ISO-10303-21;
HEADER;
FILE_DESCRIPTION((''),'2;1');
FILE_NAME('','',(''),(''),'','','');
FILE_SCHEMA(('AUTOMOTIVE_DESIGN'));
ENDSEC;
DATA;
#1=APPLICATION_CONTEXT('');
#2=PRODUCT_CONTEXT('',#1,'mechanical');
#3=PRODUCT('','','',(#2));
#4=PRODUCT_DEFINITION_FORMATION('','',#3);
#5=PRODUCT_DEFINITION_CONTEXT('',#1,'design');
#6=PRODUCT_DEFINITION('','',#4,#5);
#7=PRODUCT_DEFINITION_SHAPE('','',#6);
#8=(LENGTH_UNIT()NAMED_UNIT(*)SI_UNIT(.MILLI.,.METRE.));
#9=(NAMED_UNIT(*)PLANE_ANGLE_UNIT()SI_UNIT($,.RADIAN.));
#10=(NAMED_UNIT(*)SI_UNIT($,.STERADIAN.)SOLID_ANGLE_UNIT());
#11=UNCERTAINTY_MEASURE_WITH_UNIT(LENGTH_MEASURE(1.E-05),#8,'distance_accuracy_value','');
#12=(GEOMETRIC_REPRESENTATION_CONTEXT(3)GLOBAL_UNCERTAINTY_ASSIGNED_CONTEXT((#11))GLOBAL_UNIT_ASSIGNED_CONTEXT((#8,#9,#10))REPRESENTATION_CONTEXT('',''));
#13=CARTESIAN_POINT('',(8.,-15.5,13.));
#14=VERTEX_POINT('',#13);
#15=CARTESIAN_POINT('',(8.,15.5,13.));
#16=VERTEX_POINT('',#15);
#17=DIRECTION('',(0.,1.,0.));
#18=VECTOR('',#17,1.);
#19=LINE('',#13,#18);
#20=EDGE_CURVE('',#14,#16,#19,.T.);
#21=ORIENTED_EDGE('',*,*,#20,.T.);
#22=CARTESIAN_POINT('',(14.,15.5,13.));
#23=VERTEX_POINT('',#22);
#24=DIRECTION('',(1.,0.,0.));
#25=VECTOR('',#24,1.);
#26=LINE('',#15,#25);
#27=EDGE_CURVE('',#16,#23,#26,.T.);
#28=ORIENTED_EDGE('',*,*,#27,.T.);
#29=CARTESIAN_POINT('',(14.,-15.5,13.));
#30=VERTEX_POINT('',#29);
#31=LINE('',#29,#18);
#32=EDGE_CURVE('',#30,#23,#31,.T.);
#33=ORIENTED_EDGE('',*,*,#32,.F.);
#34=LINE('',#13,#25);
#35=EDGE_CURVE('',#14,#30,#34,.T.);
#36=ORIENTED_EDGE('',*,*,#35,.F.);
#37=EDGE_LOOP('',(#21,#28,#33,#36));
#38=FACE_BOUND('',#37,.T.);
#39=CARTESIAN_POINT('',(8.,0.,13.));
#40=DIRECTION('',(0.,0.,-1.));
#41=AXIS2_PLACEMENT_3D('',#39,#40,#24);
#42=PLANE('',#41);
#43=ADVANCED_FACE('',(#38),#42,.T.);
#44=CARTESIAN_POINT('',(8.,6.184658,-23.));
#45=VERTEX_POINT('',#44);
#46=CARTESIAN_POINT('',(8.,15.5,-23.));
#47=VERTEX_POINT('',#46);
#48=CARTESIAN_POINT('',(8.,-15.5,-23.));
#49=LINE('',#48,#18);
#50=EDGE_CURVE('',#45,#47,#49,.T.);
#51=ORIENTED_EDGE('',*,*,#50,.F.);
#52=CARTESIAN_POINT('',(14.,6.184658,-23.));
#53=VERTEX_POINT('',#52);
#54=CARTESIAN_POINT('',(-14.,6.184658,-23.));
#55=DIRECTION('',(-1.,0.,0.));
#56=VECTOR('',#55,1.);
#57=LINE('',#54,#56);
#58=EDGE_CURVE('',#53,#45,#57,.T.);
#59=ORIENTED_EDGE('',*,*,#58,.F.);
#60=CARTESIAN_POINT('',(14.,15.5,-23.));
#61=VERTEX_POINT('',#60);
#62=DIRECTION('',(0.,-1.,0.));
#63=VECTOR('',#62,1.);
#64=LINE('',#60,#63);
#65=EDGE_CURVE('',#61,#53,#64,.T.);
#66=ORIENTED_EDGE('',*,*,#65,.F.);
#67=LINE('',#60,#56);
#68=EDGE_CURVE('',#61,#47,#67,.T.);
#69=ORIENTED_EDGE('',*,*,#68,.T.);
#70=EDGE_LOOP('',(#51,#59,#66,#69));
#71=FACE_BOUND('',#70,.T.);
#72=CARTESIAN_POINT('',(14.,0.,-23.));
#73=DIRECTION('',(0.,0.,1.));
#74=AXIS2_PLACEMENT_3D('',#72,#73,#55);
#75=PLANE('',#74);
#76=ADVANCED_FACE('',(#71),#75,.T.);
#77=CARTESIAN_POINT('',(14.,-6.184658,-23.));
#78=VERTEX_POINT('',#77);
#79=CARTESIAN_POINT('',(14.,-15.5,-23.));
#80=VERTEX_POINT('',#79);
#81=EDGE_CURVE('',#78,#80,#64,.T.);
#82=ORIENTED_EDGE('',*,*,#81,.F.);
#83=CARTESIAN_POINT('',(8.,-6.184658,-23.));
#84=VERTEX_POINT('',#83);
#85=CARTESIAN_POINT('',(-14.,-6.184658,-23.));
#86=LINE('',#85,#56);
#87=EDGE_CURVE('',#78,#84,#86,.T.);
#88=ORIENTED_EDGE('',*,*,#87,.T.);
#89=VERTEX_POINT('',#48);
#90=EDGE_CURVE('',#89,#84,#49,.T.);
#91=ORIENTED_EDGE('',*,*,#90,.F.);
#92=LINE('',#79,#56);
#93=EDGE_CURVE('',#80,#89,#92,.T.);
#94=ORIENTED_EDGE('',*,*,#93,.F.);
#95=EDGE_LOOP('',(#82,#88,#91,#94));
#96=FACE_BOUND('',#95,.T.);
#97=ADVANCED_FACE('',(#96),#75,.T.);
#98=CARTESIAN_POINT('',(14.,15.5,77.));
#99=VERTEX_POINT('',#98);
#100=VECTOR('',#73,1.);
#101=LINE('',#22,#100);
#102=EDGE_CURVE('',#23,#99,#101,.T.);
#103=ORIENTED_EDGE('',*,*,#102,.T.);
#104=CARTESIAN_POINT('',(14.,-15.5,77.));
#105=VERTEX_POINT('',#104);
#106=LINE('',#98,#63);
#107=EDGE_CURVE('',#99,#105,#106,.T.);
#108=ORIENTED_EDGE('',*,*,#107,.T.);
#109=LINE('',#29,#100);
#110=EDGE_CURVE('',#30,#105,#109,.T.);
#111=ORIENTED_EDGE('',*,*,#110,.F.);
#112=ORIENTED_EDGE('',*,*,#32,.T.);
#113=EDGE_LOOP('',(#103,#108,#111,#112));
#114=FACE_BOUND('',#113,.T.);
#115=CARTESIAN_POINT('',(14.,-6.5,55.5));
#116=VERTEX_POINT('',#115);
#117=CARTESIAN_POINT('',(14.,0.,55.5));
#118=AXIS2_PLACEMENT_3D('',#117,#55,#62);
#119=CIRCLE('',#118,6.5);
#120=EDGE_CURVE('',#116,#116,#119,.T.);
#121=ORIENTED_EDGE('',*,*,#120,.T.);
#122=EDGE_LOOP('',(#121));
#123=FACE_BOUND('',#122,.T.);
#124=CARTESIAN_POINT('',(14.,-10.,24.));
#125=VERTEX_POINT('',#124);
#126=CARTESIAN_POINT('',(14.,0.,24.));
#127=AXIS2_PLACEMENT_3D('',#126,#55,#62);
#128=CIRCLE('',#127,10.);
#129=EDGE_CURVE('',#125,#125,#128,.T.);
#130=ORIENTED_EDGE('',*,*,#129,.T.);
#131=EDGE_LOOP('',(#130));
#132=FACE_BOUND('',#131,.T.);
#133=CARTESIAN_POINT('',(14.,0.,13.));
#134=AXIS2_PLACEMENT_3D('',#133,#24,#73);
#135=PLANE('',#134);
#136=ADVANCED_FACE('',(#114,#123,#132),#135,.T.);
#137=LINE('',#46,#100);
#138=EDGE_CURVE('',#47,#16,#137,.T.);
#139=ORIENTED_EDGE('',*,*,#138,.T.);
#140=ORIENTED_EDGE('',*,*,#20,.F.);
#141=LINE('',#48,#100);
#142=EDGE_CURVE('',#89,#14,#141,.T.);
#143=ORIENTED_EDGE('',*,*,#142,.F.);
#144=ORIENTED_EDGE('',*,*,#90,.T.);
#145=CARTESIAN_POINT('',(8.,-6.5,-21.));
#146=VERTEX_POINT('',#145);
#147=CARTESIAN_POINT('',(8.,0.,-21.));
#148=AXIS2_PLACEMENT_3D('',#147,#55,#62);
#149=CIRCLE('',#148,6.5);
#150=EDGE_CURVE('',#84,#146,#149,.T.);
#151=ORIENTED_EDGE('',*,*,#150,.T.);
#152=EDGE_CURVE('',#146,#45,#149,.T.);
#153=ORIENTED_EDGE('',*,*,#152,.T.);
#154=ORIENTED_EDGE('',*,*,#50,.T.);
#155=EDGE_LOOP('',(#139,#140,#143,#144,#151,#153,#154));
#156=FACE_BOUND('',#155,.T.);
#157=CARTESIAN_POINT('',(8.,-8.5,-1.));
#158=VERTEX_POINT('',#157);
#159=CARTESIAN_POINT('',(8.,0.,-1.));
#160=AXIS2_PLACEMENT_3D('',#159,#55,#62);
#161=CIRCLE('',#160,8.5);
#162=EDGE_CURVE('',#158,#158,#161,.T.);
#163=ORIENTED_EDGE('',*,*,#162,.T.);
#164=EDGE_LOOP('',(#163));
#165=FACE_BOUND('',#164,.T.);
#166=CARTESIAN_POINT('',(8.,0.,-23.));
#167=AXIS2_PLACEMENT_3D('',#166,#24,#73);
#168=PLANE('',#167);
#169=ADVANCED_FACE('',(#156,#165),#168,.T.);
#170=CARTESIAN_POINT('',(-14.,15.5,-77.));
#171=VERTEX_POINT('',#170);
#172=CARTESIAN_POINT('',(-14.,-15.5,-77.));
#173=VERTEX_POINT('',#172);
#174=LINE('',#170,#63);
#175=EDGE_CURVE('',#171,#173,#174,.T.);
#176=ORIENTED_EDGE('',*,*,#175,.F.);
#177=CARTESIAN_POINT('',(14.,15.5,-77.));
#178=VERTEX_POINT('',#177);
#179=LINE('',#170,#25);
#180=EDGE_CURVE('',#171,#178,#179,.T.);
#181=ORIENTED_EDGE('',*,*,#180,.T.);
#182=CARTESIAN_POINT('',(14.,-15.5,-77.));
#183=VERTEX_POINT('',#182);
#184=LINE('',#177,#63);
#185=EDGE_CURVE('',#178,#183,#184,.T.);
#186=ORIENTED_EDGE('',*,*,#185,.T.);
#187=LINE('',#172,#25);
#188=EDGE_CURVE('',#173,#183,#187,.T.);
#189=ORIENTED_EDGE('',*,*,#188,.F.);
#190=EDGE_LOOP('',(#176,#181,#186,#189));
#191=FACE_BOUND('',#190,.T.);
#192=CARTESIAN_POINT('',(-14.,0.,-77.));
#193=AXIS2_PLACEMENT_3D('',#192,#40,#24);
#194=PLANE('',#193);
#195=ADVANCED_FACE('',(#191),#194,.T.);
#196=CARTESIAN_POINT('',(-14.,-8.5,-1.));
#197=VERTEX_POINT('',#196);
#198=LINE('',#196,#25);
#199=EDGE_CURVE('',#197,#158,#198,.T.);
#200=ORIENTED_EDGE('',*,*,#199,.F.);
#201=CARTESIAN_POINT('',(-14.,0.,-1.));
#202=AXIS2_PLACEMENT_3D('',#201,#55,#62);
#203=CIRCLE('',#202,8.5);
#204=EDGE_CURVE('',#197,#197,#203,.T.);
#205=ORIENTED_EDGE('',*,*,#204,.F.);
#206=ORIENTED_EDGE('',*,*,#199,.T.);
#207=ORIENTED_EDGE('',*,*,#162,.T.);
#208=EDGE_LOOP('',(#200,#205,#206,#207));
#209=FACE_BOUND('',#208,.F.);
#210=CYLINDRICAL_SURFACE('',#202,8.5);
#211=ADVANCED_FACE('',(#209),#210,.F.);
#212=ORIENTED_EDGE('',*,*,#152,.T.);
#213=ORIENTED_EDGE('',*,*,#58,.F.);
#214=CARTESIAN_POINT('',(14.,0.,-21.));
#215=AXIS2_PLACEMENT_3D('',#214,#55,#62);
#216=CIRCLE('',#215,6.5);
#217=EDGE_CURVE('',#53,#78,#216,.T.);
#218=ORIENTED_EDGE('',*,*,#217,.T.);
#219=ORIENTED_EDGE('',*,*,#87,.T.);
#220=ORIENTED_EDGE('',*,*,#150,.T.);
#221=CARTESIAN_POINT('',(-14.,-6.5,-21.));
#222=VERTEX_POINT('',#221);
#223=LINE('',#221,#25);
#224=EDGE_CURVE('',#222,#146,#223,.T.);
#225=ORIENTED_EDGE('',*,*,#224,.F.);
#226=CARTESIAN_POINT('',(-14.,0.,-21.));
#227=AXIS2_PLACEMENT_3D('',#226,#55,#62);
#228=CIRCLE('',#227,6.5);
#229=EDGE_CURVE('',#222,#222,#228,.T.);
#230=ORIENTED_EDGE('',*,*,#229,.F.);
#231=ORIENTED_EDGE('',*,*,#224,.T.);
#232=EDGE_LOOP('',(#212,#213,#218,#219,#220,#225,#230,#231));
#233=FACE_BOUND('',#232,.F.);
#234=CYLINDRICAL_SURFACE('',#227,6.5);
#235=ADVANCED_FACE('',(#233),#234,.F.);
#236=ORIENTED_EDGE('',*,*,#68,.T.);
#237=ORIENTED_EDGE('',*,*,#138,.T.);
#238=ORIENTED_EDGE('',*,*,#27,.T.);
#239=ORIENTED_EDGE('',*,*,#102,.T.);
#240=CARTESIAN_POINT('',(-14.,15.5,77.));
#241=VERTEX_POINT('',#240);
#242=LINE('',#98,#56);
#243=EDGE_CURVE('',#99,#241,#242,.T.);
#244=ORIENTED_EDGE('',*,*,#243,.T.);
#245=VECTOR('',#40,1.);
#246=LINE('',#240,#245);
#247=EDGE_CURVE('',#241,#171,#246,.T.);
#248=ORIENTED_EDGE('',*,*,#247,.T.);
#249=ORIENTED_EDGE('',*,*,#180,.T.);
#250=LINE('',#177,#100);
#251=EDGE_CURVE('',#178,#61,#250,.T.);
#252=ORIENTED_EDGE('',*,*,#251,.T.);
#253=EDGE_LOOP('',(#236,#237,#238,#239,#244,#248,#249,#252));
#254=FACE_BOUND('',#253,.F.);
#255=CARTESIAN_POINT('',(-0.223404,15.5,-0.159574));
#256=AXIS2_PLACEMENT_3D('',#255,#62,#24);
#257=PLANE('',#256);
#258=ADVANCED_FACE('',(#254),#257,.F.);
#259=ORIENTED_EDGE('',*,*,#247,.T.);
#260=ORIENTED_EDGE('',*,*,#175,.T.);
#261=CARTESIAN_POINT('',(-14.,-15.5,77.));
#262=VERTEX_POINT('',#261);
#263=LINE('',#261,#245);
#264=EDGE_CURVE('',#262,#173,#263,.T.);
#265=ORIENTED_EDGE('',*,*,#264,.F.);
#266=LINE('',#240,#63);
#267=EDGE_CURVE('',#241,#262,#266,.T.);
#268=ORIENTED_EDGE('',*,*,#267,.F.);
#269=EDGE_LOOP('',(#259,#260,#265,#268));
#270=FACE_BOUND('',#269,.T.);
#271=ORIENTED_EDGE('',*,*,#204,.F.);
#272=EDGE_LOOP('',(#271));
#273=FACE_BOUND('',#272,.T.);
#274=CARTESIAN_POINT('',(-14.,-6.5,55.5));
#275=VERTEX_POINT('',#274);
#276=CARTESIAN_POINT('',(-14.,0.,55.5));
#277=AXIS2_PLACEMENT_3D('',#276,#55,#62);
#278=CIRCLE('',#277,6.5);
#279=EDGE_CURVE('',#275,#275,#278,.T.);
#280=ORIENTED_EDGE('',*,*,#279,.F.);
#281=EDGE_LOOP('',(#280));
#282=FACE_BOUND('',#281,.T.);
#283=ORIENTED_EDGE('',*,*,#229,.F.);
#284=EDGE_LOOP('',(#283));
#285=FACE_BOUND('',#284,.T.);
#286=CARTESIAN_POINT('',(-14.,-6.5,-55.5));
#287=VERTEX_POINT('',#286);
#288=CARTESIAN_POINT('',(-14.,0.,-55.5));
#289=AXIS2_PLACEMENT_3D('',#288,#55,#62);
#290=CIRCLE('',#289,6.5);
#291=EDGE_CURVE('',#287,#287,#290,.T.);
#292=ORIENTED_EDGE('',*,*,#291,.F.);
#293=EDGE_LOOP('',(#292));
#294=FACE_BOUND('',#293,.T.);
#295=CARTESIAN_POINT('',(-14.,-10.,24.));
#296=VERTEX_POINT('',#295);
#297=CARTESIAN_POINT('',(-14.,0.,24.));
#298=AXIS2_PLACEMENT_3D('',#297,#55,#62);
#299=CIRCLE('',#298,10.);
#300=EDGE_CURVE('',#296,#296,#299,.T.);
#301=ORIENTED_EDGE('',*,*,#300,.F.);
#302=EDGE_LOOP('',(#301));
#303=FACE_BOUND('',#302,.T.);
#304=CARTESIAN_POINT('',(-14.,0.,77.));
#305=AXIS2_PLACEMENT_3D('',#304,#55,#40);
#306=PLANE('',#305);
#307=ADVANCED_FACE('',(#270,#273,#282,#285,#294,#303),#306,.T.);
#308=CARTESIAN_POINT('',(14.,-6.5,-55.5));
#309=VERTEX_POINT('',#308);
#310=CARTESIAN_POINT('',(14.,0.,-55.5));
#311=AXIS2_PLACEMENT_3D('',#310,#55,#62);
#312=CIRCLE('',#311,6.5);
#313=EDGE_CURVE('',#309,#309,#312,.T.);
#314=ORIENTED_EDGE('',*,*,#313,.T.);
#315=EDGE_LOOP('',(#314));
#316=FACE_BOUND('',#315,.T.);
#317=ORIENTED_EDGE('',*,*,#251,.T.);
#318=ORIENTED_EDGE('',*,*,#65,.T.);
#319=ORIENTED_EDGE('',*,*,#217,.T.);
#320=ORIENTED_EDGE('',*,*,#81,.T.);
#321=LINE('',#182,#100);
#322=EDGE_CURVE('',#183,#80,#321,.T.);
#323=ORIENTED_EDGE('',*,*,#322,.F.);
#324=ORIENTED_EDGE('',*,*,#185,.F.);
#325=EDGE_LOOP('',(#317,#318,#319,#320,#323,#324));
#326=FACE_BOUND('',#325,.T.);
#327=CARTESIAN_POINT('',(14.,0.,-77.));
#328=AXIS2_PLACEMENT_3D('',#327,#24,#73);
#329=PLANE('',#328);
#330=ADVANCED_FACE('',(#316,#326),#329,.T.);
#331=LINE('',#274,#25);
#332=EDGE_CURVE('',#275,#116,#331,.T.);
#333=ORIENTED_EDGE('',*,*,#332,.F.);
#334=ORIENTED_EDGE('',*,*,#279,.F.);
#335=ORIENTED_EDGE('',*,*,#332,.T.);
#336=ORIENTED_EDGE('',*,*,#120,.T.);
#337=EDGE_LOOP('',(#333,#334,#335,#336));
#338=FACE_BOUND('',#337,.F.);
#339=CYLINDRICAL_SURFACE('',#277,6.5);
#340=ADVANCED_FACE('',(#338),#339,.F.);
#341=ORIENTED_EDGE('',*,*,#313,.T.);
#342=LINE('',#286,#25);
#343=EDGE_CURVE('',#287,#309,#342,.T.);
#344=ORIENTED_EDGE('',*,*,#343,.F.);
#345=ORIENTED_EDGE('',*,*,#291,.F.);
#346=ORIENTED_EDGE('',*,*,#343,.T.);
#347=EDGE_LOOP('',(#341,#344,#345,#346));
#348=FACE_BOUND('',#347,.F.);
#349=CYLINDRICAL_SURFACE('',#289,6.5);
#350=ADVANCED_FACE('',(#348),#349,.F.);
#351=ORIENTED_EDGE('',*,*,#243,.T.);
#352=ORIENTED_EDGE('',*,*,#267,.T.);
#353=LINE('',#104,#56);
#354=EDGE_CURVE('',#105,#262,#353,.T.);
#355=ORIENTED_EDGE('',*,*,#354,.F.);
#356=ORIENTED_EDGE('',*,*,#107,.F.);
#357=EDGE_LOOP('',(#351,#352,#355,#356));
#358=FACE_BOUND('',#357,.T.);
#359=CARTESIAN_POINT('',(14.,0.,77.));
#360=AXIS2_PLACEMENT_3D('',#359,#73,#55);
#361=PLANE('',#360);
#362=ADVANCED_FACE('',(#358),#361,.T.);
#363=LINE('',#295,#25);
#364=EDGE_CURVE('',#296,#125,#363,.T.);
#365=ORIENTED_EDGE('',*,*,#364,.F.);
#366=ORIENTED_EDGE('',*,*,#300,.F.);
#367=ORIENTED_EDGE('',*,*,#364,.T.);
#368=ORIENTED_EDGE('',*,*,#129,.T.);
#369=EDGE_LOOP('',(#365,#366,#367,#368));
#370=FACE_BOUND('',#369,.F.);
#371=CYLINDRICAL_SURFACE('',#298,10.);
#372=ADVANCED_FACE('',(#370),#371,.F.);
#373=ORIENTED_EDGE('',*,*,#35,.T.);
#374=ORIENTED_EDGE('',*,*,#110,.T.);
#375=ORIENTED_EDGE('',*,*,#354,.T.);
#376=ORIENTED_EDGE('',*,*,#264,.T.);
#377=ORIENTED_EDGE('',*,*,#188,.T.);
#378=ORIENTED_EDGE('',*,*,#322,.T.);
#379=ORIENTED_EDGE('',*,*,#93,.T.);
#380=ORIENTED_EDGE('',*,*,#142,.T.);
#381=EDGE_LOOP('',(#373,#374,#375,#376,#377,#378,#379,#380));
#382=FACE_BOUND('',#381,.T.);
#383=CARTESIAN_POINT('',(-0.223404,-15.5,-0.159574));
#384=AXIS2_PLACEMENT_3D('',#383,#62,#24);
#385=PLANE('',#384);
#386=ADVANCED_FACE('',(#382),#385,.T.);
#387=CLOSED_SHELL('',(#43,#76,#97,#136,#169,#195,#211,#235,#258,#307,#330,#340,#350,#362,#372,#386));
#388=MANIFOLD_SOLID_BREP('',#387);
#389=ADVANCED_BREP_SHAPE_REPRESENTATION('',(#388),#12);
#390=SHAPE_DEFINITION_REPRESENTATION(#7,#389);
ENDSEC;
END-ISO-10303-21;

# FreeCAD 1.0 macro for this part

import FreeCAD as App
import Part
import Sketcher
from FreeCAD import Vector


def add_polygon(sketch, points):
    """Adds a closed chain of lines whose ends are joined by coincident constraints."""
    first, n = sketch.GeometryCount, len(points)
    for a, b in zip(points, points[1:] + points[:1]):
        sketch.addGeometry(Part.LineSegment(App.Vector(*a, 0), App.Vector(*b, 0)), False)
    for i in range(n):
        sketch.addConstraint(Sketcher.Constraint("Coincident", first + i, 2, first + (i + 1) % n, 1))

doc = App.newDocument("Part")
params = doc.addObject("Spreadsheet::Sheet", "Params")
for row, (alias, value) in enumerate([
    ("sketch1_width", "28 mm"),
    ("sketch1_width2", "6 mm"),
    ("sketch1_height", "64 mm"),
    ("sketch1_height2", "154 mm"),
    ("sketch1_height3", "54 mm"),
    ("pad1_length", "31 mm"),
    ("sketch2_diameter", "13 mm"),
    ("sketch2_diameter2", "20 mm"),
    ("sketch2_diameter3", "17 mm"),
], start=1):
    params.set(f"A{row}", alias)
    params.set(f"B{row}", "=" + value)
    params.setAlias(f"B{row}", alias)

body = doc.addObject("PartDesign::Body", "Body")

sketch1 = body.newObject("Sketcher::SketchObject", "Sketch")
sketch1.AttachmentSupport = (doc.getObject("XZ_Plane"), [""])
sketch1.MapMode = "FlatFace"
add_polygon(sketch1, [(14, 13), (14, 77), (-14, 77), (-14, -77), (14, -77), (14, -23), (8, -23), (8, 13)])
sketch1.addConstraint([
    Sketcher.Constraint("Vertical", 0),
    Sketcher.Constraint("Horizontal", 1),
    Sketcher.Constraint("Vertical", 2),
    Sketcher.Constraint("Horizontal", 3),
    Sketcher.Constraint("Vertical", 4),
    Sketcher.Constraint("Horizontal", 5),
    Sketcher.Constraint("Vertical", 6),
    Sketcher.Constraint("Horizontal", 7),
    Sketcher.Constraint("Symmetric", 0, 2, 2, 2, -1, 1),
    Sketcher.Constraint("Vertical", 0, 2, 3, 2),
    Sketcher.Constraint("DistanceX", 1, 2, 1, 1, 28.0),
    Sketcher.Constraint("DistanceX", 5, 2, 5, 1, 6.0),
    Sketcher.Constraint("DistanceY", 0, 1, 0, 2, 64.0),
    Sketcher.Constraint("DistanceY", 2, 2, 2, 1, 154.0),
    Sketcher.Constraint("DistanceY", 4, 1, 4, 2, 54.0),
])
sketch1.setExpression("Constraints[18]", "Params.sketch1_width")
sketch1.setExpression("Constraints[19]", "Params.sketch1_width2")
sketch1.setExpression("Constraints[20]", "Params.sketch1_height")
sketch1.setExpression("Constraints[21]", "Params.sketch1_height2")
sketch1.setExpression("Constraints[22]", "Params.sketch1_height3")
pad1 = body.newObject("PartDesign::Pad", "Pad")
pad1.Profile = sketch1
pad1.setExpression("Length", "Params.pad1_length")
pad1.Midplane = True

sketch2 = body.newObject("Sketcher::SketchObject", "Sketch001")
sketch2.AttachmentSupport = (doc.getObject("YZ_Plane"), [""])
sketch2.MapMode = "FlatFace"
sketch2.AttachmentOffset = App.Placement(Vector(0, 0, -14), App.Rotation())
sketch2.addGeometry([
    Part.Circle(Vector(0, 56, 0), Vector(0, 0, 1), 6),
    Part.Circle(Vector(0, 24, 0), Vector(0, 0, 1), 10),
    Part.Circle(Vector(0, -1, 0), Vector(0, 0, 1), 8),
    Part.Circle(Vector(0, -21, 0), Vector(0, 0, 1), 6),
    Part.Circle(Vector(0, -56, 0), Vector(0, 0, 1), 6),
], False)
sketch2.addConstraint([
    Sketcher.Constraint("Equal", 0, 3),
    Sketcher.Constraint("Equal", 3, 4),
    Sketcher.Constraint("Symmetric", 0, 3, 4, 3, -1, 1),
    Sketcher.Constraint("PointOnObject", 0, 3, -2),
    Sketcher.Constraint("PointOnObject", 1, 3, -2),
    Sketcher.Constraint("PointOnObject", 2, 3, -2),
    Sketcher.Constraint("PointOnObject", 3, 3, -2),
    Sketcher.Constraint("Diameter", 0, 13.0),
    Sketcher.Constraint("Diameter", 1, 20.0),
    Sketcher.Constraint("Diameter", 2, 17.0),
    Sketcher.Constraint("DistanceY", -1, 1, 1, 3, 24.0),
    Sketcher.Constraint("DistanceY", 2, 3, -1, 1, 1.0),
    Sketcher.Constraint("DistanceY", 3, 3, -1, 1, 21.0),
    Sketcher.Constraint("DistanceY", 4, 3, 0, 3, 111.0),
])
sketch2.setExpression("Constraints[7]", "Params.sketch2_diameter")
sketch2.setExpression("Constraints[8]", "Params.sketch2_diameter2")
sketch2.setExpression("Constraints[9]", "Params.sketch2_diameter3")
pocket1 = body.newObject("PartDesign::Pocket", "Pocket")
pocket1.Profile = sketch2
pocket1.Type = "ThroughAll"
pocket1.Reversed = True

doc.recompute()
